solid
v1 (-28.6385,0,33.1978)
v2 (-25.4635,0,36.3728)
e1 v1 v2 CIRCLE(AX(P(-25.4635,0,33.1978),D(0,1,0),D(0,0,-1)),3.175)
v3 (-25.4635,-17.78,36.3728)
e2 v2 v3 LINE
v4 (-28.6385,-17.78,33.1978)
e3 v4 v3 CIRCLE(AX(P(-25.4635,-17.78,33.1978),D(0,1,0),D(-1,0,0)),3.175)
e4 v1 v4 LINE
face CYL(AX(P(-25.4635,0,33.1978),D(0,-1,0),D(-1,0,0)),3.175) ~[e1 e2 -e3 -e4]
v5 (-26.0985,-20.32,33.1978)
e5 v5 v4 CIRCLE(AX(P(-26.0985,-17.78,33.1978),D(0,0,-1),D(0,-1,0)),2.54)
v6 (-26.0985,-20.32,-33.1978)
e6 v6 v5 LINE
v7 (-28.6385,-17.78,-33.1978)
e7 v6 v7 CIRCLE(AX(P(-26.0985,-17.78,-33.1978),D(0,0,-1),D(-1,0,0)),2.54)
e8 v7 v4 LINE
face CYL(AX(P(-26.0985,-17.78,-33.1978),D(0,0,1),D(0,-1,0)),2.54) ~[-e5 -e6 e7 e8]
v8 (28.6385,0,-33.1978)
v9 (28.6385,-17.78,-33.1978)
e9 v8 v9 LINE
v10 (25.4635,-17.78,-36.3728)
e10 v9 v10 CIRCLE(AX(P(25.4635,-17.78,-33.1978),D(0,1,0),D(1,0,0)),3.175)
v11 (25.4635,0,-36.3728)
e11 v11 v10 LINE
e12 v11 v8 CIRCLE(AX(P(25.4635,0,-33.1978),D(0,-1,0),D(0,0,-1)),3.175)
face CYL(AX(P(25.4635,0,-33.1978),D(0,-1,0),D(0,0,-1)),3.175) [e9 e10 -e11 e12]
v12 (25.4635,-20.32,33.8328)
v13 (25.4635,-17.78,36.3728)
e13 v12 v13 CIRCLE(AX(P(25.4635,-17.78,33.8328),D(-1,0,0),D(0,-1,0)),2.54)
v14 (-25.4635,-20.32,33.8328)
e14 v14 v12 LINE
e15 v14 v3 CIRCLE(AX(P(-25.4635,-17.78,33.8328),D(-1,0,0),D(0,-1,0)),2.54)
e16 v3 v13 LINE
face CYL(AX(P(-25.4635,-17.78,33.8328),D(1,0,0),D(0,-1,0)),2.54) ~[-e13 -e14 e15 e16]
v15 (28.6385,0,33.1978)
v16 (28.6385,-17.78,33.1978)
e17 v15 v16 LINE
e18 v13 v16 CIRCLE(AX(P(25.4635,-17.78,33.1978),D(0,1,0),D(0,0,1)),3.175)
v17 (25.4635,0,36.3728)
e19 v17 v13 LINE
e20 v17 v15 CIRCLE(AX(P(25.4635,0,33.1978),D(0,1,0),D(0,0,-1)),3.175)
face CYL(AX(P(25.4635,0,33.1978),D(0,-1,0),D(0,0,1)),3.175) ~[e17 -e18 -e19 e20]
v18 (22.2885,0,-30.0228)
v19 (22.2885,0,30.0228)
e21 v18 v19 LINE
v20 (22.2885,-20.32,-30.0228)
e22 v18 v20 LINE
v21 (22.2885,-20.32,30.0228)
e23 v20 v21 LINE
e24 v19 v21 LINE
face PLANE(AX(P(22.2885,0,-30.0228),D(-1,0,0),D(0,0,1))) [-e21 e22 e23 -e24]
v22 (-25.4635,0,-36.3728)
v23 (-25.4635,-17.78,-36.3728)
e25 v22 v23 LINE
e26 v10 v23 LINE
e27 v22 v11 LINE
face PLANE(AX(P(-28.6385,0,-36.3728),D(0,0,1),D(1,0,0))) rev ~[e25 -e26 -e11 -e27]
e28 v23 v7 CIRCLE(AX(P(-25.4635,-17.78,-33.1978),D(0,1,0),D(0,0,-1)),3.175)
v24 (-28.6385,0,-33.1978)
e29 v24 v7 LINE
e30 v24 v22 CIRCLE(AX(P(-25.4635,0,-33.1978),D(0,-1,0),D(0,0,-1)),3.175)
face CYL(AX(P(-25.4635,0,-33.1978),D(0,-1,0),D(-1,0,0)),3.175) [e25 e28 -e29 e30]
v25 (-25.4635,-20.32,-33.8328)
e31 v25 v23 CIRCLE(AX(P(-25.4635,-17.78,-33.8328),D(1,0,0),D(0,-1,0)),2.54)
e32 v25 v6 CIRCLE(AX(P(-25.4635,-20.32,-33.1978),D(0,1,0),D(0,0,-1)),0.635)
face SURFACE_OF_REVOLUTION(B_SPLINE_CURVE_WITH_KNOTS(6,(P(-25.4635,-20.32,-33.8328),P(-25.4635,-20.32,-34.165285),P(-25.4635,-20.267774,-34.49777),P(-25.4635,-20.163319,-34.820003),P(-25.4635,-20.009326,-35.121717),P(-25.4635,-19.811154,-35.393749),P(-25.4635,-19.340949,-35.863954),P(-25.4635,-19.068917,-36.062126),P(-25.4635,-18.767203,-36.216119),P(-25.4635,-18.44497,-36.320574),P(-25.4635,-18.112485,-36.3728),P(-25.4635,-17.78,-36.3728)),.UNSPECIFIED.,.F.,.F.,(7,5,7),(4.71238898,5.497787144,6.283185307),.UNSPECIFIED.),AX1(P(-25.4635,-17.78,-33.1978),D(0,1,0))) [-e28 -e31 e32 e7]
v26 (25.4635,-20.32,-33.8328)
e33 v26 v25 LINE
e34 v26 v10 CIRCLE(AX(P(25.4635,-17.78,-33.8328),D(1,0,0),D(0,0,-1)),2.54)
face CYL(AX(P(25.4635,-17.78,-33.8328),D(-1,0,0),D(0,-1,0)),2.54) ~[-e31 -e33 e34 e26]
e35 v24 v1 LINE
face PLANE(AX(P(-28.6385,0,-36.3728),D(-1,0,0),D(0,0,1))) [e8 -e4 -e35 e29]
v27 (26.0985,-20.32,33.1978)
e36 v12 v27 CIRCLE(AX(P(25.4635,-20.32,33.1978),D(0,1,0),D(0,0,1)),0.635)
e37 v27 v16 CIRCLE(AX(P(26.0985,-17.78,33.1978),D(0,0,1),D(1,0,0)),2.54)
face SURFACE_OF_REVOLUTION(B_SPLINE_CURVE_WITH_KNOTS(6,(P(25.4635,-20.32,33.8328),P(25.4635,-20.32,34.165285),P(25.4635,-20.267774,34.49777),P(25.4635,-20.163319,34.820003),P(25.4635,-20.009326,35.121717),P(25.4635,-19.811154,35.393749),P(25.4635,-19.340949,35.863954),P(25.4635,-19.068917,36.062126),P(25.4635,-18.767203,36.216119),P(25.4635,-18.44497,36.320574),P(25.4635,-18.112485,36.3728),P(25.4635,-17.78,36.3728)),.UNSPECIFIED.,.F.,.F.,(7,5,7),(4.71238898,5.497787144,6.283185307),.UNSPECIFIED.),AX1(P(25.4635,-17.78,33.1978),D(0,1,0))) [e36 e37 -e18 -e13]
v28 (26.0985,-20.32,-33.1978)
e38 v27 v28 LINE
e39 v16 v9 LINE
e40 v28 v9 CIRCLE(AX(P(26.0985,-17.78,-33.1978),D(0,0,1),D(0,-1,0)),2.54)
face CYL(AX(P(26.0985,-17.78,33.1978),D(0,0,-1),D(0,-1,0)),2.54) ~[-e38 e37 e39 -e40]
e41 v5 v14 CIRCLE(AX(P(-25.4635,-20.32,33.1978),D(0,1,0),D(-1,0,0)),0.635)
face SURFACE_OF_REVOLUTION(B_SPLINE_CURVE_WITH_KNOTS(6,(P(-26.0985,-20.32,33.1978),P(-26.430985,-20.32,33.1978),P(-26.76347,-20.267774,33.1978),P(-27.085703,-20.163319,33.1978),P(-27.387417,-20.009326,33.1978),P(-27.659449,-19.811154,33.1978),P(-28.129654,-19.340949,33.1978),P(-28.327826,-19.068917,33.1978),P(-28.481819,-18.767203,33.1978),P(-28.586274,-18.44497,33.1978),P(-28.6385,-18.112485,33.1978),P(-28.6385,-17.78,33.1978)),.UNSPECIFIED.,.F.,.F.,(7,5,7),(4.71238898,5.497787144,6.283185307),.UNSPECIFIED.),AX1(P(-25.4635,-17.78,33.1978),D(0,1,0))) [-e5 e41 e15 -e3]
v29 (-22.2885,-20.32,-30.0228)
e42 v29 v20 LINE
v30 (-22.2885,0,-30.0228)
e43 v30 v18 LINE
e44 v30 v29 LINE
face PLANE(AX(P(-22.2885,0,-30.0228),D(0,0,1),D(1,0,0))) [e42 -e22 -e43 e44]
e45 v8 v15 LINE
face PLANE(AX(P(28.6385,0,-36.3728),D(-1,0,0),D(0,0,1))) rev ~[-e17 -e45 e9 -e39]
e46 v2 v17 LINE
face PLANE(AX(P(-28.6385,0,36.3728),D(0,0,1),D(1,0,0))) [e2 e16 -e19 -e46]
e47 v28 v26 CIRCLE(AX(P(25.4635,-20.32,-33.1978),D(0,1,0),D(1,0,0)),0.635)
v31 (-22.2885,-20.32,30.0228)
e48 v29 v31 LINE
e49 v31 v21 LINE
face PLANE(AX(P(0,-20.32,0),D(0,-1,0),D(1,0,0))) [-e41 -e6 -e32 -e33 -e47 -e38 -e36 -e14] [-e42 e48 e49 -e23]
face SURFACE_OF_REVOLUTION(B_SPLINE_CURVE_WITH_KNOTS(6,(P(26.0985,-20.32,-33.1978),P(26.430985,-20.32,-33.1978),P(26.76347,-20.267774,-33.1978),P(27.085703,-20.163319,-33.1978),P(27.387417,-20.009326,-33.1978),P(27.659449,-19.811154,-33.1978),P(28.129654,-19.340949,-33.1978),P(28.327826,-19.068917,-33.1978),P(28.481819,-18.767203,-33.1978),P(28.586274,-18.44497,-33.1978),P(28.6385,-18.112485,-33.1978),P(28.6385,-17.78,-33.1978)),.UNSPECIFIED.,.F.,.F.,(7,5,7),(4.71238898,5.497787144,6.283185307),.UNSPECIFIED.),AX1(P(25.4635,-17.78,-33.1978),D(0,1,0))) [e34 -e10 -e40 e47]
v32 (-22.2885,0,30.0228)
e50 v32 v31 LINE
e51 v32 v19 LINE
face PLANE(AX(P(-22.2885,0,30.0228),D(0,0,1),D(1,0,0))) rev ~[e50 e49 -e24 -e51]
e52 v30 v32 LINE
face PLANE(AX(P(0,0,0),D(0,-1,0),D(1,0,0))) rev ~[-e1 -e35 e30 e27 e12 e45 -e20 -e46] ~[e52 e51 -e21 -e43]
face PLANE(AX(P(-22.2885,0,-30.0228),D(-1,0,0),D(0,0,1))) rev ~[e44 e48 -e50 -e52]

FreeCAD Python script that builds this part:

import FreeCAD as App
import Part
import Sketcher
from FreeCAD import Vector
Q = App.Units.Quantity


def edges_at(feature, points):
    """Names of the edges that pass closest to the given points."""
    edges = feature.Shape.Edges
    near = lambda p: min(range(len(edges)), key=lambda i: edges[i].distToShape(Part.Vertex(*p))[0])
    return sorted({f"Edge{near(p) + 1}" for p in points})

doc = App.newDocument("Part")
body = doc.addObject("PartDesign::Body", "Body")

# Sketch on XZ plane
sketch1 = body.newObject("Sketcher::SketchObject", "Sketch")
sketch1.AttachmentSupport = (doc.getObject("XZ_Plane"), [""])
sketch1.MapMode = "FlatFace"
sketch1.addGeometry(Part.LineSegment(Vector(-29, 36, 0), Vector(-29, -36, 0)), False)
sketch1.addGeometry(Part.LineSegment(Vector(-29, -36, 0), Vector(29, -36, 0)), False)
sketch1.addGeometry(Part.LineSegment(Vector(29, -36, 0), Vector(29, 36, 0)), False)
sketch1.addGeometry(Part.LineSegment(Vector(29, 36, 0), Vector(-29, 36, 0)), False)
sketch1.addGeometry(Part.LineSegment(Vector(22, -30, 0), Vector(-22, -30, 0)), False)
sketch1.addGeometry(Part.LineSegment(Vector(-22, -30, 0), Vector(-22, 30, 0)), False)
sketch1.addGeometry(Part.LineSegment(Vector(-22, 30, 0), Vector(22, 30, 0)), False)
sketch1.addGeometry(Part.LineSegment(Vector(22, 30, 0), Vector(22, -30, 0)), False)
sketch1.addConstraint(Sketcher.Constraint("Coincident", 0, 2, 1, 1))
sketch1.addConstraint(Sketcher.Constraint("Coincident", 1, 2, 2, 1))
sketch1.addConstraint(Sketcher.Constraint("Coincident", 2, 2, 3, 1))
sketch1.addConstraint(Sketcher.Constraint("Coincident", 3, 2, 0, 1))
sketch1.addConstraint(Sketcher.Constraint("Coincident", 4, 2, 5, 1))
sketch1.addConstraint(Sketcher.Constraint("Coincident", 5, 2, 6, 1))
sketch1.addConstraint(Sketcher.Constraint("Coincident", 6, 2, 7, 1))
sketch1.addConstraint(Sketcher.Constraint("Coincident", 7, 2, 4, 1))
sketch1.addConstraint(Sketcher.Constraint("Vertical", 0))
sketch1.addConstraint(Sketcher.Constraint("Horizontal", 1))
sketch1.addConstraint(Sketcher.Constraint("Vertical", 2))
sketch1.addConstraint(Sketcher.Constraint("Horizontal", 3))
sketch1.addConstraint(Sketcher.Constraint("Horizontal", 4))
sketch1.addConstraint(Sketcher.Constraint("Vertical", 5))
sketch1.addConstraint(Sketcher.Constraint("Horizontal", 6))
sketch1.addConstraint(Sketcher.Constraint("Vertical", 7))
sketch1.addConstraint(Sketcher.Constraint("Symmetric", 0, 2, 2, 2, -1, 1))
sketch1.addConstraint(Sketcher.Constraint("Symmetric", 4, 2, 6, 2, -1, 1))
sketch1.addConstraint(Sketcher.Constraint("DistanceX", 1, 1, 1, 2, Q("2.255 in")))
sketch1.addConstraint(Sketcher.Constraint("DistanceX", 4, 2, 4, 1, Q("1.755 in")))
sketch1.addConstraint(Sketcher.Constraint("DistanceY", 0, 2, 0, 1, Q("2.864 in")))
sketch1.addConstraint(Sketcher.Constraint("DistanceY", 5, 1, 5, 2, Q("2.364 in")))
pad1 = body.newObject("PartDesign::Pad", "Pad")
pad1.Profile = sketch1
pad1.Length = Q("0.8 in")
doc.recompute()

fillet = body.newObject("PartDesign::Fillet", "Fillet")
fillet.Base = (pad1, edges_at(pad1, [
    (28.639, -10.16, 36.373),
    (28.639, -10.16, -36.373),
    (-28.639, -10.16, -36.373),
    (-28.639, -10.16, 36.373),
]))
fillet.Radius = Q("0.125 in")
doc.recompute()

fillet2 = body.newObject("PartDesign::Fillet", "Fillet001")
fillet2.Base = (fillet, edges_at(fillet, [(0, -20.32, 36.373)]))
fillet2.Radius = Q("0.1 in")

doc.recompute()
